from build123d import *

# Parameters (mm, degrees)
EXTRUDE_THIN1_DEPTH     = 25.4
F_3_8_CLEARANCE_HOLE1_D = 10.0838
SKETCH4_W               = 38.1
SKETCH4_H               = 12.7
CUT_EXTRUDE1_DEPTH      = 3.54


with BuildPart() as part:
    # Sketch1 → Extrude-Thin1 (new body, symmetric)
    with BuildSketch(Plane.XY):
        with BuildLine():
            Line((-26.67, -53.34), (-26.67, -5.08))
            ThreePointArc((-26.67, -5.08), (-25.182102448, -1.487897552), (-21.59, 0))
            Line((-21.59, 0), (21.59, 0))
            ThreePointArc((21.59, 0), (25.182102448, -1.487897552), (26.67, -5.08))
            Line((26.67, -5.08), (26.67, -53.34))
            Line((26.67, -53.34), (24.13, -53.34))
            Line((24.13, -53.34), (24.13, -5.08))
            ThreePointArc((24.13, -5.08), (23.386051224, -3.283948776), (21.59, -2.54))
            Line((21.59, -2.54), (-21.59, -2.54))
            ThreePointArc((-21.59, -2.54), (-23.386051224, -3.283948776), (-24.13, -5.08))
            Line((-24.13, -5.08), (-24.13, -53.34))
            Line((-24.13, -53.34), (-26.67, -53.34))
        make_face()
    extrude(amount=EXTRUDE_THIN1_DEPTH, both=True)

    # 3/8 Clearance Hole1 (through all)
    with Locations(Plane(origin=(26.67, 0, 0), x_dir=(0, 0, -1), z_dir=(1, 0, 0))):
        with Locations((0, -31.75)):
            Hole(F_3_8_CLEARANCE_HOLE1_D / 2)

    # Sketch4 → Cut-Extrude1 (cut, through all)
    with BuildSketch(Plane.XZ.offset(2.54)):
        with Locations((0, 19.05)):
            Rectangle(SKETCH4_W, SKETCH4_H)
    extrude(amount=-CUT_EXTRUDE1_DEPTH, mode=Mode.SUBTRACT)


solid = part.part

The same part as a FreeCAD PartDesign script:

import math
import FreeCAD as App
import Part
import Sketcher
Q = App.Units.Quantity

doc = App.newDocument("Part")
body = doc.addObject("PartDesign::Body", "Body")

sketch1 = body.newObject("Sketcher::SketchObject", "Sketch")
sketch1.AttachmentSupport = (doc.getObject("XY_Plane"), [""])
sketch1.MapMode = "FlatFace"
sketch1.addGeometry([
    Part.LineSegment(App.Vector(-26.7, -5.1, 0), App.Vector(-26.7, -53.3, 0)),
    Part.LineSegment(App.Vector(-26.7, -53.3, 0), App.Vector(-24.1, -53.3, 0)),
    Part.LineSegment(App.Vector(-24.1, -53.3, 0), App.Vector(-24.1, -5.1, 0)),
    Part.ArcOfCircle(Part.Circle(App.Vector(-21.6, -5.1, 0), App.Vector(0, 0, 1), 2.5), math.radians(90), math.radians(180)),
    Part.LineSegment(App.Vector(-21.6, -2.5, 0), App.Vector(21.6, -2.5, 0)),
    Part.ArcOfCircle(Part.Circle(App.Vector(21.6, -5.1, 0), App.Vector(0, 0, 1), 2.5), math.radians(0), math.radians(90)),
    Part.LineSegment(App.Vector(24.1, -5.1, 0), App.Vector(24.1, -53.3, 0)),
    Part.LineSegment(App.Vector(24.1, -53.3, 0), App.Vector(26.7, -53.3, 0)),
    Part.LineSegment(App.Vector(26.7, -53.3, 0), App.Vector(26.7, -5.1, 0)),
    Part.ArcOfCircle(Part.Circle(App.Vector(21.6, -5.1, 0), App.Vector(0, 0, 1), 5.1), math.radians(0), math.radians(90)),
    Part.LineSegment(App.Vector(21.6, 0, 0), App.Vector(-21.6, 0, 0)),
    Part.ArcOfCircle(Part.Circle(App.Vector(-21.6, -5.1, 0), App.Vector(0, 0, 1), 5.1), math.radians(90), math.radians(180)),
], False)
sketch1.addConstraint([
    Sketcher.Constraint("Coincident", 0, 2, 1, 1),
    Sketcher.Constraint("Coincident", 1, 2, 2, 1),
    Sketcher.Constraint("Tangent", 2, 2, 3, 2),
    Sketcher.Constraint("Tangent", 3, 1, 4, 1),
    Sketcher.Constraint("Tangent", 4, 2, 5, 2),
    Sketcher.Constraint("Tangent", 5, 1, 6, 1),
    Sketcher.Constraint("Coincident", 6, 2, 7, 1),
    Sketcher.Constraint("Coincident", 7, 2, 8, 1),
    Sketcher.Constraint("Tangent", 8, 2, 9, 1),
    Sketcher.Constraint("Tangent", 9, 2, 10, 1),
    Sketcher.Constraint("Tangent", 10, 2, 11, 1),
    Sketcher.Constraint("Tangent", 11, 2, 0, 1),
    Sketcher.Constraint("Vertical", 0),
    Sketcher.Constraint("Horizontal", 1),
    Sketcher.Constraint("Vertical", 2),
    Sketcher.Constraint("Horizontal", 4),
    Sketcher.Constraint("Vertical", 6),
    Sketcher.Constraint("Horizontal", 7),
    Sketcher.Constraint("Vertical", 8),
    Sketcher.Constraint("Horizontal", 10),
    Sketcher.Constraint("Coincident", 9, 3, 5, 3),
    Sketcher.Constraint("Coincident", 11, 3, 3, 3),
    Sketcher.Constraint("Equal", 3, 5),
    Sketcher.Constraint("Symmetric", 9, 2, 10, 2, -1, 1),
    Sketcher.Constraint("Horizontal", 1, 2, 6, 2),
    Sketcher.Constraint("Radius", 3, Q("0.1 in")),
    Sketcher.Constraint("Radius", 9, Q("0.2 in")),
    Sketcher.Constraint("DistanceX", 4, 1, 4, 2, Q("1.7 in")),
    Sketcher.Constraint("DistanceY", 0, 2, 0, 1, Q("1.9 in")),
])
pad1 = body.newObject("PartDesign::Pad", "Pad")
pad1.Profile = sketch1
pad1.Length = Q("2 in")
pad1.Midplane = True

sketch2 = body.newObject("Sketcher::SketchObject", "Sketch001")
sketch2.AttachmentSupport = (doc.getObject("YZ_Plane"), [""])
sketch2.MapMode = "FlatFace"
sketch2.AttachmentOffset = App.Placement(App.Vector(0, 0, 1.05 * 25.4), App.Rotation())
sketch2.addGeometry(Part.Circle(App.Vector(-32, 0, 0), App.Vector(0, 0, 1), 5), False)
sketch2.addConstraint([
    Sketcher.Constraint("PointOnObject", 0, 3, -1),
    Sketcher.Constraint("Diameter", 0, Q("0.397 in")),
    Sketcher.Constraint("DistanceX", 0, 3, -1, 1, Q("1.25 in")),
])
doc.recompute()
hole = body.newObject("PartDesign::Hole", "Hole")
hole.Profile = sketch2
hole.ThreadType = "None"
hole.Diameter = Q("0.397 in")
hole.DepthType = "ThroughAll"

sketch3 = body.newObject("Sketcher::SketchObject", "Sketch002")
sketch3.AttachmentSupport = (doc.getObject("XZ_Plane"), [""])
sketch3.MapMode = "FlatFace"
sketch3.AttachmentOffset = App.Placement(App.Vector(0, 0, 0.1 * 25.4), App.Rotation())
sketch3.addGeometry([
    Part.LineSegment(App.Vector(-19, 25, 0), App.Vector(-19, 13, 0)),
    Part.LineSegment(App.Vector(-19, 13, 0), App.Vector(19, 13, 0)),
    Part.LineSegment(App.Vector(19, 13, 0), App.Vector(19, 25, 0)),
    Part.LineSegment(App.Vector(19, 25, 0), App.Vector(-19, 25, 0)),
], False)
sketch3.addConstraint([
    Sketcher.Constraint("Coincident", 0, 2, 1, 1),
    Sketcher.Constraint("Coincident", 1, 2, 2, 1),
    Sketcher.Constraint("Coincident", 2, 2, 3, 1),
    Sketcher.Constraint("Coincident", 3, 2, 0, 1),
    Sketcher.Constraint("Vertical", 0),
    Sketcher.Constraint("Horizontal", 1),
    Sketcher.Constraint("Vertical", 2),
    Sketcher.Constraint("Horizontal", 3),
    Sketcher.Constraint("DistanceX", 1, 1, 1, 2, Q("1.5 in")),
    Sketcher.Constraint("DistanceY", 0, 2, 0, 1, Q("0.5 in")),
    Sketcher.Constraint("DistanceY", -1, 1, 2, 2, Q("1 in")),
    Sketcher.Constraint("DistanceX", 0, 2, -1, 1, Q("0.75 in")),
])
pocket1 = body.newObject("PartDesign::Pocket", "Pocket")
pocket1.Profile = sketch3
pocket1.Type = "ThroughAll"

doc.recompute()
